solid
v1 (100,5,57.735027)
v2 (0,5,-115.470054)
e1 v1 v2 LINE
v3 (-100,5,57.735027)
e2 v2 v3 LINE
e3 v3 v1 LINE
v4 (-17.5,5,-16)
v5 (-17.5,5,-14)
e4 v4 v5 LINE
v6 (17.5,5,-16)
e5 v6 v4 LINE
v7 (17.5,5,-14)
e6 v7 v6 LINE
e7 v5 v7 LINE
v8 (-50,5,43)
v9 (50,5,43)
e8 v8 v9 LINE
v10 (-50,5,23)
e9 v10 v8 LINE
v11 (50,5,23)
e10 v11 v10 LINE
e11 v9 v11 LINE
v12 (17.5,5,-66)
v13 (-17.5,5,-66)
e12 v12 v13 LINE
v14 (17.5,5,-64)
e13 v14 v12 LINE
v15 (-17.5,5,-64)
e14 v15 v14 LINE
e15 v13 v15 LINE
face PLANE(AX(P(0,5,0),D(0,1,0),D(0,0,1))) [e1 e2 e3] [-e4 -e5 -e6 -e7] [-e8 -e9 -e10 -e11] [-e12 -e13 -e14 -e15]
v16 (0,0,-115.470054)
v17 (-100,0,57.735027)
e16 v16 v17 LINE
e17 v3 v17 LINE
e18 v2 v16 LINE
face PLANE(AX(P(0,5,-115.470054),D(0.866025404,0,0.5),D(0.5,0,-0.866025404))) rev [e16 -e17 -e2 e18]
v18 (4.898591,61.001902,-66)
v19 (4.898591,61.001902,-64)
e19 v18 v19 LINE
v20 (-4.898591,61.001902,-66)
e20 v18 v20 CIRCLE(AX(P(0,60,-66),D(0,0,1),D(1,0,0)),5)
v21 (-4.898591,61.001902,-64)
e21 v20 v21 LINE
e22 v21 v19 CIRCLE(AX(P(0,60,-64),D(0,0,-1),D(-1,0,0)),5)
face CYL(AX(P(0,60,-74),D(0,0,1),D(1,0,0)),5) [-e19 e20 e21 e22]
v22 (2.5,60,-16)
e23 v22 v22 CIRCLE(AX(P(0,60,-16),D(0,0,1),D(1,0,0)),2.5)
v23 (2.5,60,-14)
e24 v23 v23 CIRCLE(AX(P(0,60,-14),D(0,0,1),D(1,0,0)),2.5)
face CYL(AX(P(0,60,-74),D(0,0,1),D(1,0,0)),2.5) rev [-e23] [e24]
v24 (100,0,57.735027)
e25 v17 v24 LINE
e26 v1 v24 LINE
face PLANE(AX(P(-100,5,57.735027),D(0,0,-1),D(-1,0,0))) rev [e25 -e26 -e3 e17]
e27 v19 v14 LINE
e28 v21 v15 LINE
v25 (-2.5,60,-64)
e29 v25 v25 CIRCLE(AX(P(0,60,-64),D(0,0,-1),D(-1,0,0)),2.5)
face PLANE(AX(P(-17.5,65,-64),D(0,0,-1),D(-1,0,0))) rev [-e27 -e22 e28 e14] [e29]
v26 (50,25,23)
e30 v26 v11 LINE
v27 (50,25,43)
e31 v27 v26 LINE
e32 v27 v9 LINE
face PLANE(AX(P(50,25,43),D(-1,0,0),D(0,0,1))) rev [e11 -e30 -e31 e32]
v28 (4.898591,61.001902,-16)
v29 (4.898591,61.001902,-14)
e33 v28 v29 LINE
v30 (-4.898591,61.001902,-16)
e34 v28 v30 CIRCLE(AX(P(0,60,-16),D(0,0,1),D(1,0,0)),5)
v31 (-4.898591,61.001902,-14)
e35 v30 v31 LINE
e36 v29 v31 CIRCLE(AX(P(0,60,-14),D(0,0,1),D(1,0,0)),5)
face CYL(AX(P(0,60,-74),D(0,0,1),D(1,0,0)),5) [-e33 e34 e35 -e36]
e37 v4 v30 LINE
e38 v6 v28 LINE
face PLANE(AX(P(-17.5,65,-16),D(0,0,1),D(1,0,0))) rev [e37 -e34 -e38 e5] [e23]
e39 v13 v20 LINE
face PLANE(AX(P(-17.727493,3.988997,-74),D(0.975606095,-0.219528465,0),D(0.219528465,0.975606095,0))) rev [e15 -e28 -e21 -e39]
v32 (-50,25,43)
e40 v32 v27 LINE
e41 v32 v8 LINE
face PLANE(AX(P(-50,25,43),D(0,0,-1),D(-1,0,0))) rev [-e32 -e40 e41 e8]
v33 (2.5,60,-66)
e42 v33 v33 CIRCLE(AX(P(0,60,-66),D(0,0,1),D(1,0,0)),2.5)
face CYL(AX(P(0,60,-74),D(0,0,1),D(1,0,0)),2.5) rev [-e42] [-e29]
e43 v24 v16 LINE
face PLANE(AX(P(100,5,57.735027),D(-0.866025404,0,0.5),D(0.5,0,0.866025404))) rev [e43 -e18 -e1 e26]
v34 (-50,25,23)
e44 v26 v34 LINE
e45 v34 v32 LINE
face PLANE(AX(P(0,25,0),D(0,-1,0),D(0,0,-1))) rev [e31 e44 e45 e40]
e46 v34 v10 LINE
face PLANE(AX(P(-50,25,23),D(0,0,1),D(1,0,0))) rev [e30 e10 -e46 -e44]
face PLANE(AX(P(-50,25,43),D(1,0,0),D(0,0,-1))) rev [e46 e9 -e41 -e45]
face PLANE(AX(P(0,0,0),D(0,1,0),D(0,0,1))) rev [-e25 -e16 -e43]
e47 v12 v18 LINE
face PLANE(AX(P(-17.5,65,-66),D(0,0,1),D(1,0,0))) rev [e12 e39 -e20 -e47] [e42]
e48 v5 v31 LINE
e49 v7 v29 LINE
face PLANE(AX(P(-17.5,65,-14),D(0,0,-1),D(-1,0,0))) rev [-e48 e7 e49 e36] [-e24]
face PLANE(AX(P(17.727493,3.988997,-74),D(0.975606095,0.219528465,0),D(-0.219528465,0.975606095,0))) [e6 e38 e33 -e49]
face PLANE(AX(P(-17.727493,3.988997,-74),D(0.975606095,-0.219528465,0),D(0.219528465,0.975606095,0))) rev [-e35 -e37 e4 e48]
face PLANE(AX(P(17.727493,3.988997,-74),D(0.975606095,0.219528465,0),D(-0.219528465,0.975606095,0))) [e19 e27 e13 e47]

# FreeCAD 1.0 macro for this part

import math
import FreeCAD as App
import Part
import Sketcher

V = App.Vector
Q = App.Units.Quantity

doc = App.newDocument("Part")
params = doc.addObject("Spreadsheet::Sheet", "Params")
for row, (alias, value) in enumerate([
    ("sketch1_width", "200 mm"),
    ("pad1_length", "5 mm"),
    ("sketch2_width", "35 mm"),
    ("sketch2_height", "2 mm"),
    ("pad2_length", "60 mm"),
    ("sketch3_radius", "5 mm"),
    ("sketch3_height", "60 mm"),
    ("sketch3_width", "17.5 mm"),
    ("pocket1_length", "60 mm"),
    ("sketch4_diameter", "5 mm"),
    ("pocket2_length", "60 mm"),
    ("sketch5_width", "100 mm"),
    ("sketch5_height", "20 mm"),
    ("pad3_length", "20 mm"),
], start=1):
    params.set(f"A{row}", alias)
    params.set(f"B{row}", "=" + value)
    params.setAlias(f"B{row}", alias)

body = doc.addObject("PartDesign::Body", "Body")

# Sketch on XZ plane
sketch1 = body.newObject("Sketcher::SketchObject", "Sketch")
sketch1.AttachmentSupport = (doc.getObject("XZ_Plane"), [""])
sketch1.MapMode = "FlatFace"
sketch1.addGeometry([
    Part.LineSegment(V(0, -115, 0), V(-100, 58, 0)),
    Part.LineSegment(V(-100, 58, 0), V(100, 58, 0)),
    Part.LineSegment(V(100, 58, 0), V(0, -115, 0)),
], False)
sketch1.addConstraint([
    Sketcher.Constraint("Coincident", 0, 2, 1, 1),
    Sketcher.Constraint("Coincident", 1, 2, 2, 1),
    Sketcher.Constraint("Coincident", 2, 2, 0, 1),
    Sketcher.Constraint("Horizontal", 1),
    Sketcher.Constraint("PointOnObject", 2, 2, -2),
    Sketcher.Constraint("Equal", 0, 2),
    Sketcher.Constraint("DistanceX", 1, 1, 1, 2, 200.0),
    Sketcher.Constraint("Angle", 0, Q("120 deg")),
    Sketcher.Constraint("DistanceY", -1, 1, 0, 2, 57.735027),
])
sketch1.setExpression("Constraints[6]", "Params.sketch1_width")
pad1 = body.newObject("PartDesign::Pad", "Pad")
pad1.Profile = sketch1
pad1.setExpression("Length", "Params.pad1_length")
pad1.Reversed = True

# Sketch on XZ plane
sketch2 = body.newObject("Sketcher::SketchObject", "Sketch001")
sketch2.AttachmentSupport = (doc.getObject("XZ_Plane"), [""])
sketch2.MapMode = "FlatFace"
sketch2.AttachmentOffset = App.Placement(V(0, 0, -5), App.Rotation())
sketch2.addGeometry([
    Part.LineSegment(V(-17.5, -66, 0), V(-17.5, -64, 0)),  # 0
    Part.LineSegment(V(-17.5, -64, 0), V(17.5, -64, 0)),  # 1
    Part.LineSegment(V(17.5, -64, 0), V(17.5, -66, 0)),  # 2
    Part.LineSegment(V(17.5, -66, 0), V(-17.5, -66, 0)),  # 3
    Part.LineSegment(V(-17.5, -16, 0), V(-17.5, -14, 0)),  # 4
    Part.LineSegment(V(-17.5, -14, 0), V(17.5, -14, 0)),  # 5
    Part.LineSegment(V(17.5, -14, 0), V(17.5, -16, 0)),  # 6
    Part.LineSegment(V(17.5, -16, 0), V(-17.5, -16, 0)),  # 7
], False)
sketch2.addConstraint([
    Sketcher.Constraint("Coincident", 0, 2, 1, 1),
    Sketcher.Constraint("Coincident", 1, 2, 2, 1),
    Sketcher.Constraint("Coincident", 2, 2, 3, 1),
    Sketcher.Constraint("Coincident", 3, 2, 0, 1),
    Sketcher.Constraint("Coincident", 4, 2, 5, 1),
    Sketcher.Constraint("Coincident", 5, 2, 6, 1),
    Sketcher.Constraint("Coincident", 6, 2, 7, 1),
    Sketcher.Constraint("Coincident", 7, 2, 4, 1),
    Sketcher.Constraint("Vertical", 0),
    Sketcher.Constraint("Horizontal", 1),
    Sketcher.Constraint("Vertical", 2),
    Sketcher.Constraint("Horizontal", 3),
    Sketcher.Constraint("Vertical", 4),
    Sketcher.Constraint("Horizontal", 5),
    Sketcher.Constraint("Vertical", 6),
    Sketcher.Constraint("Horizontal", 7),
    Sketcher.Constraint("Vertical", 3, 2, 4, 2),
    Sketcher.Constraint("Vertical", 2, 2, 5, 2),
    Sketcher.Constraint("Equal", 2, 4),
    Sketcher.Constraint("DistanceX", 1, 1, 1, 2, 35.0),
    Sketcher.Constraint("DistanceY", 0, 1, 0, 2, 2.0),
    Sketcher.Constraint("DistanceY", 0, 2, -1, 1, 64.0),
    Sketcher.Constraint("DistanceY", 4, 2, -1, 1, 14.0),
    Sketcher.Constraint("DistanceX", 0, 2, -1, 1, 17.5),
])
sketch2.setExpression("Constraints[19]", "Params.sketch2_width")
sketch2.setExpression("Constraints[20]", "Params.sketch2_height")
pad2 = body.newObject("PartDesign::Pad", "Pad001")
pad2.Profile = sketch2
pad2.setExpression("Length", "Params.pad2_length")
pad2.Reversed = True

# Sketch on XY plane
sketch3 = body.newObject("Sketcher::SketchObject", "Sketch002")
sketch3.AttachmentSupport = (doc.getObject("XY_Plane"), [""])
sketch3.MapMode = "FlatFace"
sketch3.AttachmentOffset = App.Placement(V(0, 0, -14), App.Rotation())
sketch3.addGeometry([
    Part.LineSegment(V(-17.5, 65, 0), V(-17.5, 5, 0)),  # 0
    Part.LineSegment(V(-17.5, 5, 0), V(-4.9, 61, 0)),  # 1
    Part.ArcOfCircle(Part.Circle(V(0, 60, 0), V(0, 0, 1), 5), math.radians(166.2), math.radians(168.44)),  # 2
    Part.ArcOfCircle(Part.Circle(V(0, 60, 0), V(0, 0, 1), 5), math.radians(90), math.radians(166)),  # 3
    Part.LineSegment(V(0, 65, 0), V(-17.5, 65, 0)),  # 4
    Part.LineSegment(V(17.5, 65, 0), V(0, 65, 0)),  # 5
    Part.ArcOfCircle(Part.Circle(V(0, 60, 0), V(0, 0, 1), 5), math.radians(14), math.radians(90)),  # 6
    Part.ArcOfCircle(Part.Circle(V(0, 60, 0), V(0, 0, 1), 5), math.radians(11.56), math.radians(13.8)),  # 7
    Part.LineSegment(V(4.9, 61, 0), V(17.5, 5, 0)),  # 8
    Part.LineSegment(V(17.5, 5, 0), V(17.5, 65, 0)),  # 9
], False)
sketch3.addConstraint([
    Sketcher.Constraint("Coincident", 0, 2, 1, 1),
    Sketcher.Constraint("Coincident", 1, 2, 2, 2),
    Sketcher.Constraint("Tangent", 2, 1, 3, 2),
    Sketcher.Constraint("Tangent", 3, 1, 4, 1),
    Sketcher.Constraint("Coincident", 4, 2, 0, 1),
    Sketcher.Constraint("Tangent", 5, 2, 6, 2),
    Sketcher.Constraint("Tangent", 6, 1, 7, 2),
    Sketcher.Constraint("Coincident", 7, 1, 8, 1),
    Sketcher.Constraint("Coincident", 8, 2, 9, 1),
    Sketcher.Constraint("Coincident", 9, 2, 5, 1),
    Sketcher.Constraint("Vertical", 0),
    Sketcher.Constraint("Horizontal", 4),
    Sketcher.Constraint("Horizontal", 5),
    Sketcher.Constraint("Vertical", 9),
    Sketcher.Constraint("Coincident", 6, 3, 2, 3),
    Sketcher.Constraint("Coincident", 5, 2, 3, 1),
    Sketcher.Constraint("Equal", 2, 7),
    Sketcher.Constraint("Symmetric", 2, 1, 6, 1, -2),
    Sketcher.Constraint("Symmetric", 0, 2, 8, 2, -2),
    Sketcher.Constraint("Horizontal", 1, 2, 7, 1),
    Sketcher.Constraint("Radius", 3, 5.0),
    Sketcher.Constraint("DistanceY", 0, 2, 0, 1, 60.0),
    Sketcher.Constraint("DistanceX", 4, 2, 4, 1, 17.5),
    Sketcher.Constraint("DistanceY", -1, 1, 2, 3, 60.000001),
    Sketcher.Constraint("DistanceX", 2, 1, -1, 1, 4.855599),
    Sketcher.Constraint("DistanceY", 2, 3, 1, 2, 1.001902),
])
sketch3.setExpression("Constraints[20]", "Params.sketch3_radius")
sketch3.setExpression("Constraints[21]", "Params.sketch3_height")
sketch3.setExpression("Constraints[22]", "Params.sketch3_width")
pocket1 = body.newObject("PartDesign::Pocket", "Pocket")
pocket1.Profile = sketch3
pocket1.setExpression("Length", "Params.pocket1_length")

# Sketch on XY plane
sketch4 = body.newObject("Sketcher::SketchObject", "Sketch003")
sketch4.AttachmentSupport = (doc.getObject("XY_Plane"), [""])
sketch4.MapMode = "FlatFace"
sketch4.AttachmentOffset = App.Placement(V(0, 0, -14), App.Rotation())
sketch4.addGeometry(Part.Circle(V(0, 60, 0), V(0, 0, 1), 2.5), False)
sketch4.addConstraint([
    Sketcher.Constraint("PointOnObject", 0, 3, -2),
    Sketcher.Constraint("Diameter", 0, 5.0),
    Sketcher.Constraint("DistanceY", -1, 1, 0, 3, 60.0),
])
sketch4.setExpression("Constraints[1]", "Params.sketch4_diameter")
pocket2 = body.newObject("PartDesign::Pocket", "Pocket001")
pocket2.Profile = sketch4
pocket2.setExpression("Length", "Params.pocket2_length")

# Sketch on XZ plane
sketch5 = body.newObject("Sketcher::SketchObject", "Sketch004")
sketch5.AttachmentSupport = (doc.getObject("XZ_Plane"), [""])
sketch5.MapMode = "FlatFace"
sketch5.AttachmentOffset = App.Placement(V(0, 0, -5), App.Rotation())
sketch5.addGeometry([
    Part.LineSegment(V(-50, 23, 0), V(-50, 43, 0)),
    Part.LineSegment(V(-50, 43, 0), V(50, 43, 0)),
    Part.LineSegment(V(50, 43, 0), V(50, 23, 0)),
    Part.LineSegment(V(50, 23, 0), V(-50, 23, 0)),
], False)
sketch5.addConstraint([
    Sketcher.Constraint("Coincident", 0, 2, 1, 1),
    Sketcher.Constraint("Coincident", 1, 2, 2, 1),
    Sketcher.Constraint("Coincident", 2, 2, 3, 1),
    Sketcher.Constraint("Coincident", 3, 2, 0, 1),
    Sketcher.Constraint("Vertical", 0),
    Sketcher.Constraint("Horizontal", 1),
    Sketcher.Constraint("Vertical", 2),
    Sketcher.Constraint("Horizontal", 3),
    Sketcher.Constraint("DistanceX", 1, 1, 1, 2, 100.0),
    Sketcher.Constraint("DistanceY", 0, 1, 0, 2, 20.0),
    Sketcher.Constraint("DistanceX", 0, 2, -1, 1, 50.0),
    Sketcher.Constraint("DistanceY", -1, 1, 0, 2, 43.0),
])
sketch5.setExpression("Constraints[8]", "Params.sketch5_width")
sketch5.setExpression("Constraints[9]", "Params.sketch5_height")
pad3 = body.newObject("PartDesign::Pad", "Pad002")
pad3.Profile = sketch5
pad3.setExpression("Length", "Params.pad3_length")
pad3.Reversed = True

doc.recompute()
